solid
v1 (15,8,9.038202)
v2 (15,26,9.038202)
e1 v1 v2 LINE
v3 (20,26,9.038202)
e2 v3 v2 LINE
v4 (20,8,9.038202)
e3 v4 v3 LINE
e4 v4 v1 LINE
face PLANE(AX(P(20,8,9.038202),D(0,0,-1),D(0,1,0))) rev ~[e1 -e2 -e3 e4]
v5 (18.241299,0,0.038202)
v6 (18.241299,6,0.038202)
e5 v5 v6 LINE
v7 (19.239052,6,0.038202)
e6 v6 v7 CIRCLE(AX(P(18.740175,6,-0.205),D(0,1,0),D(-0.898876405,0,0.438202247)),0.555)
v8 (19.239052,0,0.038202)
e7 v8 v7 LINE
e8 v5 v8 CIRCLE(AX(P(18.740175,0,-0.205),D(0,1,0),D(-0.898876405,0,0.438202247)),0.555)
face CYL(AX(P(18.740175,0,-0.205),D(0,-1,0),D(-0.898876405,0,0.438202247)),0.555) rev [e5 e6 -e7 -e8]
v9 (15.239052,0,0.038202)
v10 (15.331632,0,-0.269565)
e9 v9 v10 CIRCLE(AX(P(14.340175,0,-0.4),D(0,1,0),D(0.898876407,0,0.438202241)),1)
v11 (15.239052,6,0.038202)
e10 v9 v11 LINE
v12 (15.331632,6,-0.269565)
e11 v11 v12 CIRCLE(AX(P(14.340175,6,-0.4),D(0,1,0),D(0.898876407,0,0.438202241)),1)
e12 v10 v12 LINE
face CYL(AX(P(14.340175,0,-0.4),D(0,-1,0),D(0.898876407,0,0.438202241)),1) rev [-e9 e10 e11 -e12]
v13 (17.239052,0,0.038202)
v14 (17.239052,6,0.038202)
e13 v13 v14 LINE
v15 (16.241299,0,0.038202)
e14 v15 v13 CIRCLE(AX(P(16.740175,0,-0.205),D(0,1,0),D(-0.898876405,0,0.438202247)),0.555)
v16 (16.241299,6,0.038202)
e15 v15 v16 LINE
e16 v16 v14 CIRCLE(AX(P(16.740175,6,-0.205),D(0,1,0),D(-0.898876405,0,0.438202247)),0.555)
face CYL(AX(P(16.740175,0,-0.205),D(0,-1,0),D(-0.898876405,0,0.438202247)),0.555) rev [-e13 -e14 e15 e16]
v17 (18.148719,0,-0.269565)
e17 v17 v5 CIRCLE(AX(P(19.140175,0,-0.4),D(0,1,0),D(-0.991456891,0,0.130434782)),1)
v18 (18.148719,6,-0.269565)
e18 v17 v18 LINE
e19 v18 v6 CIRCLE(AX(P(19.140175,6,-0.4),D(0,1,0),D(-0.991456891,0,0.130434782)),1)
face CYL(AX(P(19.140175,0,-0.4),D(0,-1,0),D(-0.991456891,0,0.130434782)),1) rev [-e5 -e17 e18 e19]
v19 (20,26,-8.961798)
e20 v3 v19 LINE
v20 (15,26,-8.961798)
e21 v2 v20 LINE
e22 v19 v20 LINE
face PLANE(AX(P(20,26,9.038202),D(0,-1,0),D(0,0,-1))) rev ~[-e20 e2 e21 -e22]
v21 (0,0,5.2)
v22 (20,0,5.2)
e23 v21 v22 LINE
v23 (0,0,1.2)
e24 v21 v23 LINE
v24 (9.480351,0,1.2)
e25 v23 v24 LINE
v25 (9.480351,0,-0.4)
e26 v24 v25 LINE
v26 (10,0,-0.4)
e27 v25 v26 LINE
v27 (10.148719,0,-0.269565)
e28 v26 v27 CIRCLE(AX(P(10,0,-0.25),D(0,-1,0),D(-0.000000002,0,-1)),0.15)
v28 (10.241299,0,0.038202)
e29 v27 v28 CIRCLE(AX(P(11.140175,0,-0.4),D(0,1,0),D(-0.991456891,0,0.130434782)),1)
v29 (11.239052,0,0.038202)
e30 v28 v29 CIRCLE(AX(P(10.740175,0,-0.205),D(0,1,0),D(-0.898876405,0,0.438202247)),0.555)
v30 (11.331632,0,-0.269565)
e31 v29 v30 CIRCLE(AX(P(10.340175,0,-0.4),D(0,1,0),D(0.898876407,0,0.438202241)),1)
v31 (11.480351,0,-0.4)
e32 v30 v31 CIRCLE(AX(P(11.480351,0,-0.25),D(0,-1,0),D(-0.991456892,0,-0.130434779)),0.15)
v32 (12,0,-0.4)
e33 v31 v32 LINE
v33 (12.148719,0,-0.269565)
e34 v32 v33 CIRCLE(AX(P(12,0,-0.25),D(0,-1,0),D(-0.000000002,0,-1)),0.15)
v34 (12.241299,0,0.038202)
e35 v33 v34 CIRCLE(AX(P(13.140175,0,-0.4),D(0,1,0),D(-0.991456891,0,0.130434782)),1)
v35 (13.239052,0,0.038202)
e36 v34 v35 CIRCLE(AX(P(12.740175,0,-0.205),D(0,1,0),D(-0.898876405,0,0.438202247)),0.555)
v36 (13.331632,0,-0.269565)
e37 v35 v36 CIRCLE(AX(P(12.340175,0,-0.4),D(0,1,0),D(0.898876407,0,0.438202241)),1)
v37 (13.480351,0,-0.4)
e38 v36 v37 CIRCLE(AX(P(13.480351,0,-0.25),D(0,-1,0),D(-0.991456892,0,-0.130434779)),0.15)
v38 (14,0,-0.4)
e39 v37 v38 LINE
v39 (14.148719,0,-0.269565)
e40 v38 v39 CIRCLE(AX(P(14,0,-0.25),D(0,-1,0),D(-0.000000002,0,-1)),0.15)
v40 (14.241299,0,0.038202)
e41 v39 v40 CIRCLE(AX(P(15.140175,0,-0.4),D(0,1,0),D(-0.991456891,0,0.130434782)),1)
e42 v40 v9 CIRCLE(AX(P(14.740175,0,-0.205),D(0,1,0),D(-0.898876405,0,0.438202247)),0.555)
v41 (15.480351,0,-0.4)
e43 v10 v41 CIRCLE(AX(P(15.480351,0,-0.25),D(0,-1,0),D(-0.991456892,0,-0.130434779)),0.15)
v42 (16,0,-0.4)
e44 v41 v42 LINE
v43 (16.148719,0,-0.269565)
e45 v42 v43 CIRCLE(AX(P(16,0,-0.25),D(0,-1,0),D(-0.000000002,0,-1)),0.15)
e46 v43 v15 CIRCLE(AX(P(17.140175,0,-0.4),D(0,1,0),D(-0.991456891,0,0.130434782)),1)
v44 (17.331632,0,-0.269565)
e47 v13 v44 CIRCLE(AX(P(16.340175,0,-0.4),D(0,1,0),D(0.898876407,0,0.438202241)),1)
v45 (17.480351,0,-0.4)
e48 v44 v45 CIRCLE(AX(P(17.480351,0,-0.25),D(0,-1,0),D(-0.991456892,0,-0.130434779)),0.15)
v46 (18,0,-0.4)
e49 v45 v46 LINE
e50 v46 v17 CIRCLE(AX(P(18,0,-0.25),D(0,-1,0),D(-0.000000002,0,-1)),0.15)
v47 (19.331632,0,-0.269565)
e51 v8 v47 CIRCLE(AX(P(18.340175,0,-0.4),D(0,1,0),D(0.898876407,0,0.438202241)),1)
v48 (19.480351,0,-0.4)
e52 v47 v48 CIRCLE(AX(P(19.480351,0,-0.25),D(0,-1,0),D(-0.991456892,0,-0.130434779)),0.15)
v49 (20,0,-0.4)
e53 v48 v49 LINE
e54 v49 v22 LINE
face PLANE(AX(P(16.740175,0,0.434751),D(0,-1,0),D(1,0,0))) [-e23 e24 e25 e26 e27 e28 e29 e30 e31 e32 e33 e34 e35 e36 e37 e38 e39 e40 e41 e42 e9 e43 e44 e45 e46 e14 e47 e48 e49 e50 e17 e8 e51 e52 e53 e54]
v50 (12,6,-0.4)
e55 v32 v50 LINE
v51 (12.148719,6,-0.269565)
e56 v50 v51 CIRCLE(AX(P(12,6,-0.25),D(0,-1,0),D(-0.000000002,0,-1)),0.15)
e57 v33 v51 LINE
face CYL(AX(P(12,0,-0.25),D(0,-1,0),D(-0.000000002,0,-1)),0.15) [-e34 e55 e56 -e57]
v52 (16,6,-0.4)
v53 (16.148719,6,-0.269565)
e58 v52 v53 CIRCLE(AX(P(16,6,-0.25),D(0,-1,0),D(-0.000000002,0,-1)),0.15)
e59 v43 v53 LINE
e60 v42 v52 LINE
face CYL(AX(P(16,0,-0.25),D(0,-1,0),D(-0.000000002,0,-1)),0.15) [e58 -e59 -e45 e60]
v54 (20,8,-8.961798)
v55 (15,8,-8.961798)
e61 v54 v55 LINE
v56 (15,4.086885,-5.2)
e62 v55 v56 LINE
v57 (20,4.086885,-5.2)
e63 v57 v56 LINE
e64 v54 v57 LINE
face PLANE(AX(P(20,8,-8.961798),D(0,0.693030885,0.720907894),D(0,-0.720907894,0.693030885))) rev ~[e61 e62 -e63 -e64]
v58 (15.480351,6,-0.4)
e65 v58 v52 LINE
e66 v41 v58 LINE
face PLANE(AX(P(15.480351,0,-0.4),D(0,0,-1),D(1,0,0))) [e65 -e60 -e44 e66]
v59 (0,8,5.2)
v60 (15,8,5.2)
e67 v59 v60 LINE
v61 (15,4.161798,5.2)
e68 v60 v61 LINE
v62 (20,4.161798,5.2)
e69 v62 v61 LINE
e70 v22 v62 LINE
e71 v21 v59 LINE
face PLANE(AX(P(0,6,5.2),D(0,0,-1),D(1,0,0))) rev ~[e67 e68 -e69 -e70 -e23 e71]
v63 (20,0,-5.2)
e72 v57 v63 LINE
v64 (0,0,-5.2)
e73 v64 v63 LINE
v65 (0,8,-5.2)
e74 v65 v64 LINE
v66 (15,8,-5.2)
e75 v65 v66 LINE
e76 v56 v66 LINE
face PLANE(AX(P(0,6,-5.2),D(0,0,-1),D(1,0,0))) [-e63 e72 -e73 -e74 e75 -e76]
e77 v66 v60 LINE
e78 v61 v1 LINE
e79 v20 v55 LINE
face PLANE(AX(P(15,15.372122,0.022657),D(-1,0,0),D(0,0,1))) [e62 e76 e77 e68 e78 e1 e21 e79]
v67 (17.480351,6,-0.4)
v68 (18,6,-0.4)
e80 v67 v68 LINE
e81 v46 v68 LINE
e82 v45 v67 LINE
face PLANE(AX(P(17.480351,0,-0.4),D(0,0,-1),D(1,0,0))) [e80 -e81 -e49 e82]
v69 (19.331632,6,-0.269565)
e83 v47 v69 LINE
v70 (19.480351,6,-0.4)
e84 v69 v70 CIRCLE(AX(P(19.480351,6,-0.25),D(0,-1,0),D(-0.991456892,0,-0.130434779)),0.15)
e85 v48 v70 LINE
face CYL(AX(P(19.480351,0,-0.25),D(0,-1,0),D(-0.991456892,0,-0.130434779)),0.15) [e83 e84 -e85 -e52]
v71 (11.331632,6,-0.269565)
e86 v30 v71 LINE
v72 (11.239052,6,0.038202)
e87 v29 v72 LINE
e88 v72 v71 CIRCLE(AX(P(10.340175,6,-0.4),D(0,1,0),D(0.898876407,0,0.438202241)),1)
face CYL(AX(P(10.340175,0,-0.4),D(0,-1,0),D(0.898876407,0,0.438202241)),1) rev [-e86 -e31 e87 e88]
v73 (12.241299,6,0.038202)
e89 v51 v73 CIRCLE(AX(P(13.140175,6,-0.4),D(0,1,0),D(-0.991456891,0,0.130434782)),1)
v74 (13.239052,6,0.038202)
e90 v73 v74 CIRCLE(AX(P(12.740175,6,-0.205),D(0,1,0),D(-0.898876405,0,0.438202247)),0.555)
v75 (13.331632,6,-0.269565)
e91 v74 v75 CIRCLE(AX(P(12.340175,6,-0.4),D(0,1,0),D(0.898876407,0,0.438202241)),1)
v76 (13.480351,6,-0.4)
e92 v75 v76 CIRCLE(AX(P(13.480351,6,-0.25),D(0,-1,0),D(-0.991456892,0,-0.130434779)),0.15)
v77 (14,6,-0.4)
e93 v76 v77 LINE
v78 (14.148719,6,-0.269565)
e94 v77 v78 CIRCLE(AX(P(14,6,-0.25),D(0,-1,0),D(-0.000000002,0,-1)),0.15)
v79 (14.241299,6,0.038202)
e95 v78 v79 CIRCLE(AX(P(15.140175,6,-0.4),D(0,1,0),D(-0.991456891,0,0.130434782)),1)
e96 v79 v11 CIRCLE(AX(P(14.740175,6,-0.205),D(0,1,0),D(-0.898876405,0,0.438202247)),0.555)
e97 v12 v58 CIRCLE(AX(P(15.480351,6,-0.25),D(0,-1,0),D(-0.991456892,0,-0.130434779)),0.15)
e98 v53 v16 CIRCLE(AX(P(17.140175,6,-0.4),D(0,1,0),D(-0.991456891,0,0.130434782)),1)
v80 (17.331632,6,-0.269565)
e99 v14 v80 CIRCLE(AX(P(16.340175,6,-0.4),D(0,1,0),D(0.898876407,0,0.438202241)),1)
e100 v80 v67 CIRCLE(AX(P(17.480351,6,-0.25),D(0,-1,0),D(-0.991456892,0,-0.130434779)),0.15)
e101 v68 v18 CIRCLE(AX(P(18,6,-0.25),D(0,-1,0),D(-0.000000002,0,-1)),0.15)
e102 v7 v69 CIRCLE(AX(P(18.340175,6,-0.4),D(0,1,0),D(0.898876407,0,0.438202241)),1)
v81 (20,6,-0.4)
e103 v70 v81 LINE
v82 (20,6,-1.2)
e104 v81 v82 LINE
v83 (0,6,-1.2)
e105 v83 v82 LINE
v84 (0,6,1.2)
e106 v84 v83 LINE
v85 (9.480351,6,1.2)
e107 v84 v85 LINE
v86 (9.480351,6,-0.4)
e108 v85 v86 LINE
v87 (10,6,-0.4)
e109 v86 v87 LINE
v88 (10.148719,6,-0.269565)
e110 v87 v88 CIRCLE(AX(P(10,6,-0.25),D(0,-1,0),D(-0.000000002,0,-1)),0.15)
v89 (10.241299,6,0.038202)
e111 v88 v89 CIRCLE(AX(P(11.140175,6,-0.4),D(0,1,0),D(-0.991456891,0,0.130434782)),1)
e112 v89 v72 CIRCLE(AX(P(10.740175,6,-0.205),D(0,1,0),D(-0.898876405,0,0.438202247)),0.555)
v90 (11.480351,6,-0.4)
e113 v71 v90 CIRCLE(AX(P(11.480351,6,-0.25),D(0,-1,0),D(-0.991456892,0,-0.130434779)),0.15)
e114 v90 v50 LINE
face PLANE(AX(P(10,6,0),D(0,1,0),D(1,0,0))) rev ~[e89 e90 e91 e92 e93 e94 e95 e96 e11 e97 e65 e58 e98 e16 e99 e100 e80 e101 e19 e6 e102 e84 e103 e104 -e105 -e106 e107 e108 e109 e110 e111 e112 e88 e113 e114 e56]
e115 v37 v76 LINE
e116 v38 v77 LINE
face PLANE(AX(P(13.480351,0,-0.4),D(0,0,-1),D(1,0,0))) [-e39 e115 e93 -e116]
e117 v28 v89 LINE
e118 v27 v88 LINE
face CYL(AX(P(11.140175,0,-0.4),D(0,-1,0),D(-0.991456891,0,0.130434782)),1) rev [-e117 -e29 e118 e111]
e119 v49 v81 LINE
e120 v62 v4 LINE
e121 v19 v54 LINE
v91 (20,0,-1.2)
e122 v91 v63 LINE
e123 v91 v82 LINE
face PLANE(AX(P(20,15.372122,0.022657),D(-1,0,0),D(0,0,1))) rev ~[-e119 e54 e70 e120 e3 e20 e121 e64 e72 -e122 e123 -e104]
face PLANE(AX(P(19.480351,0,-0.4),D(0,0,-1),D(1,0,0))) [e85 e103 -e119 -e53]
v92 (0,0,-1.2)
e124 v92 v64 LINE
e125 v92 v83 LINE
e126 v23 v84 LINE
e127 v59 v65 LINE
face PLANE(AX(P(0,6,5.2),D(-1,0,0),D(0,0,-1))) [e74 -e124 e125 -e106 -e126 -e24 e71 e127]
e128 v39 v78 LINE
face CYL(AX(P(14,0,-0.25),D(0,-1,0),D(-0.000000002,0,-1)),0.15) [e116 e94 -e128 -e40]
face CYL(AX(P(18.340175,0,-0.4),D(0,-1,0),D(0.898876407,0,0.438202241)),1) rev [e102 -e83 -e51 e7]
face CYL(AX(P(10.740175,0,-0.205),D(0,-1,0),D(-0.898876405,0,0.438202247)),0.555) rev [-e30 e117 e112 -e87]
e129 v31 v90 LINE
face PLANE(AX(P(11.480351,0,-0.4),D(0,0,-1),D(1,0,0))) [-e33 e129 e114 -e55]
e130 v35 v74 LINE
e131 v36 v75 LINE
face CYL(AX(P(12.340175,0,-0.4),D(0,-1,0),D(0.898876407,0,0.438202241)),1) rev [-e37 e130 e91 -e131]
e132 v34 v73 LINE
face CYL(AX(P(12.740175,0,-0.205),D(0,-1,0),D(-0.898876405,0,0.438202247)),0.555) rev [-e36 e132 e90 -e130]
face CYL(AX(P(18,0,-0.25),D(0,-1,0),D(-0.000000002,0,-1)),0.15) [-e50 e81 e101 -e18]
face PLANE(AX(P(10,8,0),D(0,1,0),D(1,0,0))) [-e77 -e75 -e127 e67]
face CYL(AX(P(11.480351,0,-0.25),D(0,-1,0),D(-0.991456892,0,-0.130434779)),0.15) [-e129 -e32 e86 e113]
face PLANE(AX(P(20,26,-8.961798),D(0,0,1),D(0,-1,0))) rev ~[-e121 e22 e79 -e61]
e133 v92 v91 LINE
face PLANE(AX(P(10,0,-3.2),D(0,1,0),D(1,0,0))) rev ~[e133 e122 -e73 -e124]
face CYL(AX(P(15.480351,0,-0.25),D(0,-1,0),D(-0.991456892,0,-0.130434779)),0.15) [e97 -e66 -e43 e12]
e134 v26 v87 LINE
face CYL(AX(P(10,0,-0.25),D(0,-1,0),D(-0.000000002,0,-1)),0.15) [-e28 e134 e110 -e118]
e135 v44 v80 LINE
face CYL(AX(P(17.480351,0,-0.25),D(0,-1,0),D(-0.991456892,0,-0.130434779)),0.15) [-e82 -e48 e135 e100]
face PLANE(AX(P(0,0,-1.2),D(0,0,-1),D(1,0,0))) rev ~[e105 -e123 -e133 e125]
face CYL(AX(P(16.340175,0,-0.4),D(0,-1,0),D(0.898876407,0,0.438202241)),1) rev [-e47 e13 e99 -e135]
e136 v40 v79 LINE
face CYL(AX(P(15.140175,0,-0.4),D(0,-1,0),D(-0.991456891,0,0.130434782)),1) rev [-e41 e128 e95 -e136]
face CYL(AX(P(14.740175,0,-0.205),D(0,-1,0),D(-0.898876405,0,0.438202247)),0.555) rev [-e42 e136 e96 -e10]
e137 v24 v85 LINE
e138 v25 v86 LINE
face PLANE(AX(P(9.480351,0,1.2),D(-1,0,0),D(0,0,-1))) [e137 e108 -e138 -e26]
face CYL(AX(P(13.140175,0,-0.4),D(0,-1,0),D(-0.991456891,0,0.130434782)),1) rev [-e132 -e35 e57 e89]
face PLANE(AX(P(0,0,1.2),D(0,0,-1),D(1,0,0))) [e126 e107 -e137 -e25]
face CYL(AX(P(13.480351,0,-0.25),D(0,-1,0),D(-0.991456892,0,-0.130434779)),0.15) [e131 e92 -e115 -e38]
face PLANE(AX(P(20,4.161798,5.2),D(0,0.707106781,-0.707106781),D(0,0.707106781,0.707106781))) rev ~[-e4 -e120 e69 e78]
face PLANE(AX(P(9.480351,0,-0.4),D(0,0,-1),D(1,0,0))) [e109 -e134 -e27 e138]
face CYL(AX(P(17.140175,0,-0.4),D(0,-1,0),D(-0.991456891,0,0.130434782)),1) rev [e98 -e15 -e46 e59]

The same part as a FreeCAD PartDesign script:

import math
import FreeCAD as App
import Part
import Sketcher
from FreeCAD import Vector
Q = App.Units.Quantity


def add_polygon(sketch, points):
    """Adds a closed chain of lines whose ends are joined by coincident constraints."""
    first, n = sketch.GeometryCount, len(points)
    for a, b in zip(points, points[1:] + points[:1]):
        sketch.addGeometry(Part.LineSegment(App.Vector(*a, 0), App.Vector(*b, 0)), False)
    for i in range(n):
        sketch.addConstraint(Sketcher.Constraint("Coincident", first + i, 2, first + (i + 1) % n, 1))

doc = App.newDocument("Part")
params = doc.addObject("Spreadsheet::Sheet", "Params")
for row, (alias, value) in enumerate([
    ("sketch1_width", "20 mm"),
    ("sketch1_height", "4 mm"),
    ("pad1_length", "6 mm"),
    ("sketch2_width", "20 mm"),
    ("sketch2_height", "4 mm"),
    ("pad2_length", "6 mm"),
    ("sketch3_radius", "1 mm"),
    ("sketch3_radius2", "0.15 mm"),
    ("sketch3_height", "1.6 mm"),
    ("pad3_length", "6 mm"),
    ("linearpattern_pitch", "2 mm"),
    ("sketch4_width", "20 mm"),
    ("sketch4_height", "10.4 mm"),
    ("pad4_length", "2 mm"),
    ("sketch5_width", "18 mm"),
    ("sketch5_height", "10.4 mm"),
    ("pad5_length", "5 mm"),
], start=1):
    params.set(f"A{row}", alias)
    params.set(f"B{row}", "=" + value)
    params.setAlias(f"B{row}", alias)

body = doc.addObject("PartDesign::Body", "Body")

sketch1 = doc.addObject("Sketcher::SketchObject", "Sketch")
body.addObject(sketch1)
sketch1.AttachmentSupport = (doc.XZ_Plane, [""])
sketch1.MapMode = "FlatFace"
add_polygon(sketch1, [(0, -5.2), (0, -1.2), (20, -1.2), (20, -5.2)])
sketch1.addConstraint(Sketcher.Constraint("Vertical", 0))
sketch1.addConstraint(Sketcher.Constraint("Horizontal", 1))
sketch1.addConstraint(Sketcher.Constraint("Vertical", 2))
sketch1.addConstraint(Sketcher.Constraint("Horizontal", 3))
sketch1.addConstraint(Sketcher.Constraint("PointOnObject", 0, 2, -2))
sketch1.addConstraint(Sketcher.Constraint("DistanceX", 1, 1, 1, 2, Q("20 mm")))
sketch1.addConstraint(Sketcher.Constraint("DistanceY", 0, 1, 0, 2, Q("4 mm")))
sketch1.addConstraint(Sketcher.Constraint("DistanceY", 0, 2, -1, 1, Q("1.2 mm")))
sketch1.setExpression("Constraints[9]", "Params.sketch1_width")
sketch1.setExpression("Constraints[10]", "Params.sketch1_height")
pad1 = doc.addObject("PartDesign::Pad", "Pad")
body.addObject(pad1)
pad1.Profile = sketch1
pad1.setExpression("Length", "Params.pad1_length")
pad1.Reversed = True
body2 = doc.addObject("PartDesign::Body", "Body001")

sketch2 = doc.addObject("Sketcher::SketchObject", "Sketch001")
body2.addObject(sketch2)
sketch2.AttachmentSupport = (doc.getObject("XZ_Plane001"), [""])
sketch2.MapMode = "FlatFace"
add_polygon(sketch2, [(0, 1.2), (0, 5.2), (20, 5.2), (20, 1.2)])
sketch2.addConstraint(Sketcher.Constraint("Vertical", 0))
sketch2.addConstraint(Sketcher.Constraint("Horizontal", 1))
sketch2.addConstraint(Sketcher.Constraint("Vertical", 2))
sketch2.addConstraint(Sketcher.Constraint("Horizontal", 3))
sketch2.addConstraint(Sketcher.Constraint("PointOnObject", 0, 2, -2))
sketch2.addConstraint(Sketcher.Constraint("DistanceX", 1, 1, 1, 2, Q("20 mm")))
sketch2.addConstraint(Sketcher.Constraint("DistanceY", 0, 1, 0, 2, Q("4 mm")))
sketch2.addConstraint(Sketcher.Constraint("DistanceY", -1, 1, 0, 2, Q("5.2 mm")))
sketch2.setExpression("Constraints[9]", "Params.sketch2_width")
sketch2.setExpression("Constraints[10]", "Params.sketch2_height")
pad2 = doc.addObject("PartDesign::Pad", "Pad001")
body2.addObject(pad2)
pad2.Profile = sketch2
pad2.setExpression("Length", "Params.pad2_length")
pad2.Reversed = True

sketch3 = doc.addObject("Sketcher::SketchObject", "Sketch002")
body2.addObject(sketch3)
sketch3.AttachmentSupport = (doc.getObject("XZ_Plane001"), [""])
sketch3.MapMode = "FlatFace"
sketch3.addGeometry(Part.LineSegment(Vector(17.48, -0.4, 0), Vector(18, -0.4, 0)), False)
sketch3.addGeometry(Part.ArcOfCircle(Part.Circle(Vector(18, -0.25, 0), Vector(0, 0, 1), 0.15), math.radians(-90), math.radians(-7)), False)
sketch3.addGeometry(Part.ArcOfCircle(Part.Circle(Vector(19.14, -0.4, 0), Vector(0, 0, 1), 1), math.radians(154.01), math.radians(172.51)), False)
sketch3.addGeometry(Part.ArcOfCircle(Part.Circle(Vector(18.74, -0.2, 0), Vector(0, 0, 1), 0.56), math.radians(26), math.radians(154)), False)
sketch3.addGeometry(Part.ArcOfCircle(Part.Circle(Vector(18.34, -0.4, 0), Vector(0, 0, 1), 1), math.radians(7.49), math.radians(25.99)), False)
sketch3.addGeometry(Part.ArcOfCircle(Part.Circle(Vector(19.48, -0.25, 0), Vector(0, 0, 1), 0.15), math.radians(-173), math.radians(-90)), False)
sketch3.addGeometry(Part.LineSegment(Vector(19.48, -0.4, 0), Vector(20, -0.4, 0)), False)
sketch3.addGeometry(Part.LineSegment(Vector(20, -0.4, 0), Vector(20, 1.2, 0)), False)
sketch3.addGeometry(Part.LineSegment(Vector(20, 1.2, 0), Vector(17.48, 1.2, 0)), False)
sketch3.addGeometry(Part.LineSegment(Vector(17.48, 1.2, 0), Vector(17.48, -0.4, 0)), False)
sketch3.addConstraint(Sketcher.Constraint("Tangent", 0, 2, 1, 1))
sketch3.addConstraint(Sketcher.Constraint("Tangent", 1, 2, 2, 2))
sketch3.addConstraint(Sketcher.Constraint("Tangent", 2, 1, 3, 2))
sketch3.addConstraint(Sketcher.Constraint("Tangent", 3, 1, 4, 2))
sketch3.addConstraint(Sketcher.Constraint("Tangent", 4, 1, 5, 1))
sketch3.addConstraint(Sketcher.Constraint("Tangent", 5, 2, 6, 1))
sketch3.addConstraint(Sketcher.Constraint("Coincident", 6, 2, 7, 1))
sketch3.addConstraint(Sketcher.Constraint("Coincident", 7, 2, 8, 1))
sketch3.addConstraint(Sketcher.Constraint("Coincident", 8, 2, 9, 1))
sketch3.addConstraint(Sketcher.Constraint("Coincident", 9, 2, 0, 1))
sketch3.addConstraint(Sketcher.Constraint("Horizontal", 0))
sketch3.addConstraint(Sketcher.Constraint("Horizontal", 6))
sketch3.addConstraint(Sketcher.Constraint("Vertical", 7))
sketch3.addConstraint(Sketcher.Constraint("Horizontal", 8))
sketch3.addConstraint(Sketcher.Constraint("Vertical", 9))
sketch3.addConstraint(Sketcher.Constraint("Equal", 2, 4))
sketch3.addConstraint(Sketcher.Constraint("Equal", 1, 5))
sketch3.addConstraint(Sketcher.Constraint("Horizontal", 2, 3, 4, 3))
sketch3.addConstraint(Sketcher.Constraint("Horizontal", 1, 3, 5, 3))
sketch3.addConstraint(Sketcher.Constraint("Horizontal", 4, 3, 0, 2))
sketch3.addConstraint(Sketcher.Constraint("Equal", 0, 6))
sketch3.addConstraint(Sketcher.Constraint("Radius", 2, Q("1 mm")))
sketch3.addConstraint(Sketcher.Constraint("Radius", 1, Q("0.15 mm")))
sketch3.addConstraint(Sketcher.Constraint("DistanceY", 7, 1, 7, 2, Q("1.6 mm")))
sketch3.addConstraint(Sketcher.Constraint("DistanceX", -1, 1, 1, 3, Q("18 mm")))
sketch3.addConstraint(Sketcher.Constraint("DistanceX", -1, 1, 6, 2, Q("20 mm")))
sketch3.addConstraint(Sketcher.Constraint("Radius", 3, Q("0.555 mm")))
sketch3.addConstraint(Sketcher.Constraint("DistanceY", 2, 3, -1, 1, Q("0.4 mm")))
sketch3.addConstraint(Sketcher.Constraint("DistanceX", 3, 3, 2, 3, Q("0.4 mm")))
sketch3.setExpression("Constraints[21]", "Params.sketch3_radius")
sketch3.setExpression("Constraints[22]", "Params.sketch3_radius2")
sketch3.setExpression("Constraints[23]", "Params.sketch3_height")
pad3 = doc.addObject("PartDesign::Pad", "Pad002")
body2.addObject(pad3)
pad3.Profile = sketch3
pad3.setExpression("Length", "Params.pad3_length")
pad3.Reversed = True
doc.recompute()

linearpattern = doc.addObject("PartDesign::LinearPattern", "LinearPattern")
body2.addObject(linearpattern)
linearpattern.Originals = [pad3]
linearpattern.Direction = (doc.getObject("X_Axis001"), [""])
linearpattern.Mode = "offset"
linearpattern.setExpression("Offset", "Params.linearpattern_pitch")
linearpattern.Occurrences = 5
linearpattern.Reversed = True
body2.Tip = linearpattern
body.AllowCompound = True
doc.recompute()

boolean = doc.addObject("PartDesign::Boolean", "Boolean")
body.addObject(boolean)
boolean.Type = "Fuse"
boolean.addObjects([body2])

sketch4 = doc.addObject("Sketcher::SketchObject", "Sketch003")
body.addObject(sketch4)
sketch4.AttachmentSupport = (doc.XZ_Plane, [""])
sketch4.MapMode = "FlatFace"
sketch4.AttachmentOffset = App.Placement(Vector(0, 0, -6), App.Rotation())
add_polygon(sketch4, [(0, -5), (0, 5), (20, 5), (20, -5)])
sketch4.addConstraint(Sketcher.Constraint("Vertical", 0))
sketch4.addConstraint(Sketcher.Constraint("Horizontal", 1))
sketch4.addConstraint(Sketcher.Constraint("Vertical", 2))
sketch4.addConstraint(Sketcher.Constraint("Horizontal", 3))
sketch4.addConstraint(Sketcher.Constraint("Symmetric", 0, 2, 3, 2, -1, 1))
sketch4.addConstraint(Sketcher.Constraint("DistanceX", 1, 1, 1, 2, Q("20 mm")))
sketch4.addConstraint(Sketcher.Constraint("DistanceY", 0, 1, 0, 2, Q("10.4 mm")))
sketch4.setExpression("Constraints[9]", "Params.sketch4_width")
sketch4.setExpression("Constraints[10]", "Params.sketch4_height")
pad4 = doc.addObject("PartDesign::Pad", "Pad003")
body.addObject(pad4)
pad4.Profile = sketch4
pad4.setExpression("Length", "Params.pad4_length")
pad4.Reversed = True

sketch5 = doc.addObject("Sketcher::SketchObject", "Sketch004")
body.addObject(sketch5)
sketch5.AttachmentSupport = (doc.YZ_Plane, [""])
sketch5.MapMode = "FlatFace"
sketch5.AttachmentOffset = App.Placement(Vector(0, 0, 20), App.Rotation())
add_polygon(sketch5, [(26, -9), (26, 9), (8, 9), (4.2, 5.2), (8, 5.2), (8, -5.2), (4.1, -5.2), (8, -9)])
sketch5.addConstraint(Sketcher.Constraint("Vertical", 0))
sketch5.addConstraint(Sketcher.Constraint("Horizontal", 1))
sketch5.addConstraint(Sketcher.Constraint("Horizontal", 3))
sketch5.addConstraint(Sketcher.Constraint("Vertical", 4))
sketch5.addConstraint(Sketcher.Constraint("Horizontal", 5))
sketch5.addConstraint(Sketcher.Constraint("Horizontal", 7))
sketch5.addConstraint(Sketcher.Constraint("Vertical", 1, 2, 3, 2))
sketch5.addConstraint(Sketcher.Constraint("Vertical", 4, 2, 6, 2))
sketch5.addConstraint(Sketcher.Constraint("Equal", 7, 0))
sketch5.addConstraint(Sketcher.Constraint("Equal", 2, 6))
sketch5.addConstraint(Sketcher.Constraint("DistanceX", 1, 2, 1, 1, Q("18 mm")))
sketch5.addConstraint(Sketcher.Constraint("Angle", 2, Q("-135 deg")))
sketch5.addConstraint(Sketcher.Constraint("DistanceY", 4, 2, 4, 1, Q("10.4 mm")))
sketch5.addConstraint(Sketcher.Constraint("DistanceX", -1, 1, 0, 2, Q("26 mm")))
sketch5.addConstraint(Sketcher.Constraint("DistanceY", -1, 1, 2, 2, Q("5.2 mm")))
sketch5.addConstraint(Sketcher.Constraint("DistanceX", 3, 1, 3, 2, Q("3.838202 mm")))
sketch5.setExpression("Constraints[18]", "Params.sketch5_width")
sketch5.setExpression("Constraints[20]", "Params.sketch5_height")
pad5 = doc.addObject("PartDesign::Pad", "Pad004")
body.addObject(pad5)
pad5.Profile = sketch5
pad5.setExpression("Length", "Params.pad5_length")
pad5.Reversed = True

doc.recompute()
